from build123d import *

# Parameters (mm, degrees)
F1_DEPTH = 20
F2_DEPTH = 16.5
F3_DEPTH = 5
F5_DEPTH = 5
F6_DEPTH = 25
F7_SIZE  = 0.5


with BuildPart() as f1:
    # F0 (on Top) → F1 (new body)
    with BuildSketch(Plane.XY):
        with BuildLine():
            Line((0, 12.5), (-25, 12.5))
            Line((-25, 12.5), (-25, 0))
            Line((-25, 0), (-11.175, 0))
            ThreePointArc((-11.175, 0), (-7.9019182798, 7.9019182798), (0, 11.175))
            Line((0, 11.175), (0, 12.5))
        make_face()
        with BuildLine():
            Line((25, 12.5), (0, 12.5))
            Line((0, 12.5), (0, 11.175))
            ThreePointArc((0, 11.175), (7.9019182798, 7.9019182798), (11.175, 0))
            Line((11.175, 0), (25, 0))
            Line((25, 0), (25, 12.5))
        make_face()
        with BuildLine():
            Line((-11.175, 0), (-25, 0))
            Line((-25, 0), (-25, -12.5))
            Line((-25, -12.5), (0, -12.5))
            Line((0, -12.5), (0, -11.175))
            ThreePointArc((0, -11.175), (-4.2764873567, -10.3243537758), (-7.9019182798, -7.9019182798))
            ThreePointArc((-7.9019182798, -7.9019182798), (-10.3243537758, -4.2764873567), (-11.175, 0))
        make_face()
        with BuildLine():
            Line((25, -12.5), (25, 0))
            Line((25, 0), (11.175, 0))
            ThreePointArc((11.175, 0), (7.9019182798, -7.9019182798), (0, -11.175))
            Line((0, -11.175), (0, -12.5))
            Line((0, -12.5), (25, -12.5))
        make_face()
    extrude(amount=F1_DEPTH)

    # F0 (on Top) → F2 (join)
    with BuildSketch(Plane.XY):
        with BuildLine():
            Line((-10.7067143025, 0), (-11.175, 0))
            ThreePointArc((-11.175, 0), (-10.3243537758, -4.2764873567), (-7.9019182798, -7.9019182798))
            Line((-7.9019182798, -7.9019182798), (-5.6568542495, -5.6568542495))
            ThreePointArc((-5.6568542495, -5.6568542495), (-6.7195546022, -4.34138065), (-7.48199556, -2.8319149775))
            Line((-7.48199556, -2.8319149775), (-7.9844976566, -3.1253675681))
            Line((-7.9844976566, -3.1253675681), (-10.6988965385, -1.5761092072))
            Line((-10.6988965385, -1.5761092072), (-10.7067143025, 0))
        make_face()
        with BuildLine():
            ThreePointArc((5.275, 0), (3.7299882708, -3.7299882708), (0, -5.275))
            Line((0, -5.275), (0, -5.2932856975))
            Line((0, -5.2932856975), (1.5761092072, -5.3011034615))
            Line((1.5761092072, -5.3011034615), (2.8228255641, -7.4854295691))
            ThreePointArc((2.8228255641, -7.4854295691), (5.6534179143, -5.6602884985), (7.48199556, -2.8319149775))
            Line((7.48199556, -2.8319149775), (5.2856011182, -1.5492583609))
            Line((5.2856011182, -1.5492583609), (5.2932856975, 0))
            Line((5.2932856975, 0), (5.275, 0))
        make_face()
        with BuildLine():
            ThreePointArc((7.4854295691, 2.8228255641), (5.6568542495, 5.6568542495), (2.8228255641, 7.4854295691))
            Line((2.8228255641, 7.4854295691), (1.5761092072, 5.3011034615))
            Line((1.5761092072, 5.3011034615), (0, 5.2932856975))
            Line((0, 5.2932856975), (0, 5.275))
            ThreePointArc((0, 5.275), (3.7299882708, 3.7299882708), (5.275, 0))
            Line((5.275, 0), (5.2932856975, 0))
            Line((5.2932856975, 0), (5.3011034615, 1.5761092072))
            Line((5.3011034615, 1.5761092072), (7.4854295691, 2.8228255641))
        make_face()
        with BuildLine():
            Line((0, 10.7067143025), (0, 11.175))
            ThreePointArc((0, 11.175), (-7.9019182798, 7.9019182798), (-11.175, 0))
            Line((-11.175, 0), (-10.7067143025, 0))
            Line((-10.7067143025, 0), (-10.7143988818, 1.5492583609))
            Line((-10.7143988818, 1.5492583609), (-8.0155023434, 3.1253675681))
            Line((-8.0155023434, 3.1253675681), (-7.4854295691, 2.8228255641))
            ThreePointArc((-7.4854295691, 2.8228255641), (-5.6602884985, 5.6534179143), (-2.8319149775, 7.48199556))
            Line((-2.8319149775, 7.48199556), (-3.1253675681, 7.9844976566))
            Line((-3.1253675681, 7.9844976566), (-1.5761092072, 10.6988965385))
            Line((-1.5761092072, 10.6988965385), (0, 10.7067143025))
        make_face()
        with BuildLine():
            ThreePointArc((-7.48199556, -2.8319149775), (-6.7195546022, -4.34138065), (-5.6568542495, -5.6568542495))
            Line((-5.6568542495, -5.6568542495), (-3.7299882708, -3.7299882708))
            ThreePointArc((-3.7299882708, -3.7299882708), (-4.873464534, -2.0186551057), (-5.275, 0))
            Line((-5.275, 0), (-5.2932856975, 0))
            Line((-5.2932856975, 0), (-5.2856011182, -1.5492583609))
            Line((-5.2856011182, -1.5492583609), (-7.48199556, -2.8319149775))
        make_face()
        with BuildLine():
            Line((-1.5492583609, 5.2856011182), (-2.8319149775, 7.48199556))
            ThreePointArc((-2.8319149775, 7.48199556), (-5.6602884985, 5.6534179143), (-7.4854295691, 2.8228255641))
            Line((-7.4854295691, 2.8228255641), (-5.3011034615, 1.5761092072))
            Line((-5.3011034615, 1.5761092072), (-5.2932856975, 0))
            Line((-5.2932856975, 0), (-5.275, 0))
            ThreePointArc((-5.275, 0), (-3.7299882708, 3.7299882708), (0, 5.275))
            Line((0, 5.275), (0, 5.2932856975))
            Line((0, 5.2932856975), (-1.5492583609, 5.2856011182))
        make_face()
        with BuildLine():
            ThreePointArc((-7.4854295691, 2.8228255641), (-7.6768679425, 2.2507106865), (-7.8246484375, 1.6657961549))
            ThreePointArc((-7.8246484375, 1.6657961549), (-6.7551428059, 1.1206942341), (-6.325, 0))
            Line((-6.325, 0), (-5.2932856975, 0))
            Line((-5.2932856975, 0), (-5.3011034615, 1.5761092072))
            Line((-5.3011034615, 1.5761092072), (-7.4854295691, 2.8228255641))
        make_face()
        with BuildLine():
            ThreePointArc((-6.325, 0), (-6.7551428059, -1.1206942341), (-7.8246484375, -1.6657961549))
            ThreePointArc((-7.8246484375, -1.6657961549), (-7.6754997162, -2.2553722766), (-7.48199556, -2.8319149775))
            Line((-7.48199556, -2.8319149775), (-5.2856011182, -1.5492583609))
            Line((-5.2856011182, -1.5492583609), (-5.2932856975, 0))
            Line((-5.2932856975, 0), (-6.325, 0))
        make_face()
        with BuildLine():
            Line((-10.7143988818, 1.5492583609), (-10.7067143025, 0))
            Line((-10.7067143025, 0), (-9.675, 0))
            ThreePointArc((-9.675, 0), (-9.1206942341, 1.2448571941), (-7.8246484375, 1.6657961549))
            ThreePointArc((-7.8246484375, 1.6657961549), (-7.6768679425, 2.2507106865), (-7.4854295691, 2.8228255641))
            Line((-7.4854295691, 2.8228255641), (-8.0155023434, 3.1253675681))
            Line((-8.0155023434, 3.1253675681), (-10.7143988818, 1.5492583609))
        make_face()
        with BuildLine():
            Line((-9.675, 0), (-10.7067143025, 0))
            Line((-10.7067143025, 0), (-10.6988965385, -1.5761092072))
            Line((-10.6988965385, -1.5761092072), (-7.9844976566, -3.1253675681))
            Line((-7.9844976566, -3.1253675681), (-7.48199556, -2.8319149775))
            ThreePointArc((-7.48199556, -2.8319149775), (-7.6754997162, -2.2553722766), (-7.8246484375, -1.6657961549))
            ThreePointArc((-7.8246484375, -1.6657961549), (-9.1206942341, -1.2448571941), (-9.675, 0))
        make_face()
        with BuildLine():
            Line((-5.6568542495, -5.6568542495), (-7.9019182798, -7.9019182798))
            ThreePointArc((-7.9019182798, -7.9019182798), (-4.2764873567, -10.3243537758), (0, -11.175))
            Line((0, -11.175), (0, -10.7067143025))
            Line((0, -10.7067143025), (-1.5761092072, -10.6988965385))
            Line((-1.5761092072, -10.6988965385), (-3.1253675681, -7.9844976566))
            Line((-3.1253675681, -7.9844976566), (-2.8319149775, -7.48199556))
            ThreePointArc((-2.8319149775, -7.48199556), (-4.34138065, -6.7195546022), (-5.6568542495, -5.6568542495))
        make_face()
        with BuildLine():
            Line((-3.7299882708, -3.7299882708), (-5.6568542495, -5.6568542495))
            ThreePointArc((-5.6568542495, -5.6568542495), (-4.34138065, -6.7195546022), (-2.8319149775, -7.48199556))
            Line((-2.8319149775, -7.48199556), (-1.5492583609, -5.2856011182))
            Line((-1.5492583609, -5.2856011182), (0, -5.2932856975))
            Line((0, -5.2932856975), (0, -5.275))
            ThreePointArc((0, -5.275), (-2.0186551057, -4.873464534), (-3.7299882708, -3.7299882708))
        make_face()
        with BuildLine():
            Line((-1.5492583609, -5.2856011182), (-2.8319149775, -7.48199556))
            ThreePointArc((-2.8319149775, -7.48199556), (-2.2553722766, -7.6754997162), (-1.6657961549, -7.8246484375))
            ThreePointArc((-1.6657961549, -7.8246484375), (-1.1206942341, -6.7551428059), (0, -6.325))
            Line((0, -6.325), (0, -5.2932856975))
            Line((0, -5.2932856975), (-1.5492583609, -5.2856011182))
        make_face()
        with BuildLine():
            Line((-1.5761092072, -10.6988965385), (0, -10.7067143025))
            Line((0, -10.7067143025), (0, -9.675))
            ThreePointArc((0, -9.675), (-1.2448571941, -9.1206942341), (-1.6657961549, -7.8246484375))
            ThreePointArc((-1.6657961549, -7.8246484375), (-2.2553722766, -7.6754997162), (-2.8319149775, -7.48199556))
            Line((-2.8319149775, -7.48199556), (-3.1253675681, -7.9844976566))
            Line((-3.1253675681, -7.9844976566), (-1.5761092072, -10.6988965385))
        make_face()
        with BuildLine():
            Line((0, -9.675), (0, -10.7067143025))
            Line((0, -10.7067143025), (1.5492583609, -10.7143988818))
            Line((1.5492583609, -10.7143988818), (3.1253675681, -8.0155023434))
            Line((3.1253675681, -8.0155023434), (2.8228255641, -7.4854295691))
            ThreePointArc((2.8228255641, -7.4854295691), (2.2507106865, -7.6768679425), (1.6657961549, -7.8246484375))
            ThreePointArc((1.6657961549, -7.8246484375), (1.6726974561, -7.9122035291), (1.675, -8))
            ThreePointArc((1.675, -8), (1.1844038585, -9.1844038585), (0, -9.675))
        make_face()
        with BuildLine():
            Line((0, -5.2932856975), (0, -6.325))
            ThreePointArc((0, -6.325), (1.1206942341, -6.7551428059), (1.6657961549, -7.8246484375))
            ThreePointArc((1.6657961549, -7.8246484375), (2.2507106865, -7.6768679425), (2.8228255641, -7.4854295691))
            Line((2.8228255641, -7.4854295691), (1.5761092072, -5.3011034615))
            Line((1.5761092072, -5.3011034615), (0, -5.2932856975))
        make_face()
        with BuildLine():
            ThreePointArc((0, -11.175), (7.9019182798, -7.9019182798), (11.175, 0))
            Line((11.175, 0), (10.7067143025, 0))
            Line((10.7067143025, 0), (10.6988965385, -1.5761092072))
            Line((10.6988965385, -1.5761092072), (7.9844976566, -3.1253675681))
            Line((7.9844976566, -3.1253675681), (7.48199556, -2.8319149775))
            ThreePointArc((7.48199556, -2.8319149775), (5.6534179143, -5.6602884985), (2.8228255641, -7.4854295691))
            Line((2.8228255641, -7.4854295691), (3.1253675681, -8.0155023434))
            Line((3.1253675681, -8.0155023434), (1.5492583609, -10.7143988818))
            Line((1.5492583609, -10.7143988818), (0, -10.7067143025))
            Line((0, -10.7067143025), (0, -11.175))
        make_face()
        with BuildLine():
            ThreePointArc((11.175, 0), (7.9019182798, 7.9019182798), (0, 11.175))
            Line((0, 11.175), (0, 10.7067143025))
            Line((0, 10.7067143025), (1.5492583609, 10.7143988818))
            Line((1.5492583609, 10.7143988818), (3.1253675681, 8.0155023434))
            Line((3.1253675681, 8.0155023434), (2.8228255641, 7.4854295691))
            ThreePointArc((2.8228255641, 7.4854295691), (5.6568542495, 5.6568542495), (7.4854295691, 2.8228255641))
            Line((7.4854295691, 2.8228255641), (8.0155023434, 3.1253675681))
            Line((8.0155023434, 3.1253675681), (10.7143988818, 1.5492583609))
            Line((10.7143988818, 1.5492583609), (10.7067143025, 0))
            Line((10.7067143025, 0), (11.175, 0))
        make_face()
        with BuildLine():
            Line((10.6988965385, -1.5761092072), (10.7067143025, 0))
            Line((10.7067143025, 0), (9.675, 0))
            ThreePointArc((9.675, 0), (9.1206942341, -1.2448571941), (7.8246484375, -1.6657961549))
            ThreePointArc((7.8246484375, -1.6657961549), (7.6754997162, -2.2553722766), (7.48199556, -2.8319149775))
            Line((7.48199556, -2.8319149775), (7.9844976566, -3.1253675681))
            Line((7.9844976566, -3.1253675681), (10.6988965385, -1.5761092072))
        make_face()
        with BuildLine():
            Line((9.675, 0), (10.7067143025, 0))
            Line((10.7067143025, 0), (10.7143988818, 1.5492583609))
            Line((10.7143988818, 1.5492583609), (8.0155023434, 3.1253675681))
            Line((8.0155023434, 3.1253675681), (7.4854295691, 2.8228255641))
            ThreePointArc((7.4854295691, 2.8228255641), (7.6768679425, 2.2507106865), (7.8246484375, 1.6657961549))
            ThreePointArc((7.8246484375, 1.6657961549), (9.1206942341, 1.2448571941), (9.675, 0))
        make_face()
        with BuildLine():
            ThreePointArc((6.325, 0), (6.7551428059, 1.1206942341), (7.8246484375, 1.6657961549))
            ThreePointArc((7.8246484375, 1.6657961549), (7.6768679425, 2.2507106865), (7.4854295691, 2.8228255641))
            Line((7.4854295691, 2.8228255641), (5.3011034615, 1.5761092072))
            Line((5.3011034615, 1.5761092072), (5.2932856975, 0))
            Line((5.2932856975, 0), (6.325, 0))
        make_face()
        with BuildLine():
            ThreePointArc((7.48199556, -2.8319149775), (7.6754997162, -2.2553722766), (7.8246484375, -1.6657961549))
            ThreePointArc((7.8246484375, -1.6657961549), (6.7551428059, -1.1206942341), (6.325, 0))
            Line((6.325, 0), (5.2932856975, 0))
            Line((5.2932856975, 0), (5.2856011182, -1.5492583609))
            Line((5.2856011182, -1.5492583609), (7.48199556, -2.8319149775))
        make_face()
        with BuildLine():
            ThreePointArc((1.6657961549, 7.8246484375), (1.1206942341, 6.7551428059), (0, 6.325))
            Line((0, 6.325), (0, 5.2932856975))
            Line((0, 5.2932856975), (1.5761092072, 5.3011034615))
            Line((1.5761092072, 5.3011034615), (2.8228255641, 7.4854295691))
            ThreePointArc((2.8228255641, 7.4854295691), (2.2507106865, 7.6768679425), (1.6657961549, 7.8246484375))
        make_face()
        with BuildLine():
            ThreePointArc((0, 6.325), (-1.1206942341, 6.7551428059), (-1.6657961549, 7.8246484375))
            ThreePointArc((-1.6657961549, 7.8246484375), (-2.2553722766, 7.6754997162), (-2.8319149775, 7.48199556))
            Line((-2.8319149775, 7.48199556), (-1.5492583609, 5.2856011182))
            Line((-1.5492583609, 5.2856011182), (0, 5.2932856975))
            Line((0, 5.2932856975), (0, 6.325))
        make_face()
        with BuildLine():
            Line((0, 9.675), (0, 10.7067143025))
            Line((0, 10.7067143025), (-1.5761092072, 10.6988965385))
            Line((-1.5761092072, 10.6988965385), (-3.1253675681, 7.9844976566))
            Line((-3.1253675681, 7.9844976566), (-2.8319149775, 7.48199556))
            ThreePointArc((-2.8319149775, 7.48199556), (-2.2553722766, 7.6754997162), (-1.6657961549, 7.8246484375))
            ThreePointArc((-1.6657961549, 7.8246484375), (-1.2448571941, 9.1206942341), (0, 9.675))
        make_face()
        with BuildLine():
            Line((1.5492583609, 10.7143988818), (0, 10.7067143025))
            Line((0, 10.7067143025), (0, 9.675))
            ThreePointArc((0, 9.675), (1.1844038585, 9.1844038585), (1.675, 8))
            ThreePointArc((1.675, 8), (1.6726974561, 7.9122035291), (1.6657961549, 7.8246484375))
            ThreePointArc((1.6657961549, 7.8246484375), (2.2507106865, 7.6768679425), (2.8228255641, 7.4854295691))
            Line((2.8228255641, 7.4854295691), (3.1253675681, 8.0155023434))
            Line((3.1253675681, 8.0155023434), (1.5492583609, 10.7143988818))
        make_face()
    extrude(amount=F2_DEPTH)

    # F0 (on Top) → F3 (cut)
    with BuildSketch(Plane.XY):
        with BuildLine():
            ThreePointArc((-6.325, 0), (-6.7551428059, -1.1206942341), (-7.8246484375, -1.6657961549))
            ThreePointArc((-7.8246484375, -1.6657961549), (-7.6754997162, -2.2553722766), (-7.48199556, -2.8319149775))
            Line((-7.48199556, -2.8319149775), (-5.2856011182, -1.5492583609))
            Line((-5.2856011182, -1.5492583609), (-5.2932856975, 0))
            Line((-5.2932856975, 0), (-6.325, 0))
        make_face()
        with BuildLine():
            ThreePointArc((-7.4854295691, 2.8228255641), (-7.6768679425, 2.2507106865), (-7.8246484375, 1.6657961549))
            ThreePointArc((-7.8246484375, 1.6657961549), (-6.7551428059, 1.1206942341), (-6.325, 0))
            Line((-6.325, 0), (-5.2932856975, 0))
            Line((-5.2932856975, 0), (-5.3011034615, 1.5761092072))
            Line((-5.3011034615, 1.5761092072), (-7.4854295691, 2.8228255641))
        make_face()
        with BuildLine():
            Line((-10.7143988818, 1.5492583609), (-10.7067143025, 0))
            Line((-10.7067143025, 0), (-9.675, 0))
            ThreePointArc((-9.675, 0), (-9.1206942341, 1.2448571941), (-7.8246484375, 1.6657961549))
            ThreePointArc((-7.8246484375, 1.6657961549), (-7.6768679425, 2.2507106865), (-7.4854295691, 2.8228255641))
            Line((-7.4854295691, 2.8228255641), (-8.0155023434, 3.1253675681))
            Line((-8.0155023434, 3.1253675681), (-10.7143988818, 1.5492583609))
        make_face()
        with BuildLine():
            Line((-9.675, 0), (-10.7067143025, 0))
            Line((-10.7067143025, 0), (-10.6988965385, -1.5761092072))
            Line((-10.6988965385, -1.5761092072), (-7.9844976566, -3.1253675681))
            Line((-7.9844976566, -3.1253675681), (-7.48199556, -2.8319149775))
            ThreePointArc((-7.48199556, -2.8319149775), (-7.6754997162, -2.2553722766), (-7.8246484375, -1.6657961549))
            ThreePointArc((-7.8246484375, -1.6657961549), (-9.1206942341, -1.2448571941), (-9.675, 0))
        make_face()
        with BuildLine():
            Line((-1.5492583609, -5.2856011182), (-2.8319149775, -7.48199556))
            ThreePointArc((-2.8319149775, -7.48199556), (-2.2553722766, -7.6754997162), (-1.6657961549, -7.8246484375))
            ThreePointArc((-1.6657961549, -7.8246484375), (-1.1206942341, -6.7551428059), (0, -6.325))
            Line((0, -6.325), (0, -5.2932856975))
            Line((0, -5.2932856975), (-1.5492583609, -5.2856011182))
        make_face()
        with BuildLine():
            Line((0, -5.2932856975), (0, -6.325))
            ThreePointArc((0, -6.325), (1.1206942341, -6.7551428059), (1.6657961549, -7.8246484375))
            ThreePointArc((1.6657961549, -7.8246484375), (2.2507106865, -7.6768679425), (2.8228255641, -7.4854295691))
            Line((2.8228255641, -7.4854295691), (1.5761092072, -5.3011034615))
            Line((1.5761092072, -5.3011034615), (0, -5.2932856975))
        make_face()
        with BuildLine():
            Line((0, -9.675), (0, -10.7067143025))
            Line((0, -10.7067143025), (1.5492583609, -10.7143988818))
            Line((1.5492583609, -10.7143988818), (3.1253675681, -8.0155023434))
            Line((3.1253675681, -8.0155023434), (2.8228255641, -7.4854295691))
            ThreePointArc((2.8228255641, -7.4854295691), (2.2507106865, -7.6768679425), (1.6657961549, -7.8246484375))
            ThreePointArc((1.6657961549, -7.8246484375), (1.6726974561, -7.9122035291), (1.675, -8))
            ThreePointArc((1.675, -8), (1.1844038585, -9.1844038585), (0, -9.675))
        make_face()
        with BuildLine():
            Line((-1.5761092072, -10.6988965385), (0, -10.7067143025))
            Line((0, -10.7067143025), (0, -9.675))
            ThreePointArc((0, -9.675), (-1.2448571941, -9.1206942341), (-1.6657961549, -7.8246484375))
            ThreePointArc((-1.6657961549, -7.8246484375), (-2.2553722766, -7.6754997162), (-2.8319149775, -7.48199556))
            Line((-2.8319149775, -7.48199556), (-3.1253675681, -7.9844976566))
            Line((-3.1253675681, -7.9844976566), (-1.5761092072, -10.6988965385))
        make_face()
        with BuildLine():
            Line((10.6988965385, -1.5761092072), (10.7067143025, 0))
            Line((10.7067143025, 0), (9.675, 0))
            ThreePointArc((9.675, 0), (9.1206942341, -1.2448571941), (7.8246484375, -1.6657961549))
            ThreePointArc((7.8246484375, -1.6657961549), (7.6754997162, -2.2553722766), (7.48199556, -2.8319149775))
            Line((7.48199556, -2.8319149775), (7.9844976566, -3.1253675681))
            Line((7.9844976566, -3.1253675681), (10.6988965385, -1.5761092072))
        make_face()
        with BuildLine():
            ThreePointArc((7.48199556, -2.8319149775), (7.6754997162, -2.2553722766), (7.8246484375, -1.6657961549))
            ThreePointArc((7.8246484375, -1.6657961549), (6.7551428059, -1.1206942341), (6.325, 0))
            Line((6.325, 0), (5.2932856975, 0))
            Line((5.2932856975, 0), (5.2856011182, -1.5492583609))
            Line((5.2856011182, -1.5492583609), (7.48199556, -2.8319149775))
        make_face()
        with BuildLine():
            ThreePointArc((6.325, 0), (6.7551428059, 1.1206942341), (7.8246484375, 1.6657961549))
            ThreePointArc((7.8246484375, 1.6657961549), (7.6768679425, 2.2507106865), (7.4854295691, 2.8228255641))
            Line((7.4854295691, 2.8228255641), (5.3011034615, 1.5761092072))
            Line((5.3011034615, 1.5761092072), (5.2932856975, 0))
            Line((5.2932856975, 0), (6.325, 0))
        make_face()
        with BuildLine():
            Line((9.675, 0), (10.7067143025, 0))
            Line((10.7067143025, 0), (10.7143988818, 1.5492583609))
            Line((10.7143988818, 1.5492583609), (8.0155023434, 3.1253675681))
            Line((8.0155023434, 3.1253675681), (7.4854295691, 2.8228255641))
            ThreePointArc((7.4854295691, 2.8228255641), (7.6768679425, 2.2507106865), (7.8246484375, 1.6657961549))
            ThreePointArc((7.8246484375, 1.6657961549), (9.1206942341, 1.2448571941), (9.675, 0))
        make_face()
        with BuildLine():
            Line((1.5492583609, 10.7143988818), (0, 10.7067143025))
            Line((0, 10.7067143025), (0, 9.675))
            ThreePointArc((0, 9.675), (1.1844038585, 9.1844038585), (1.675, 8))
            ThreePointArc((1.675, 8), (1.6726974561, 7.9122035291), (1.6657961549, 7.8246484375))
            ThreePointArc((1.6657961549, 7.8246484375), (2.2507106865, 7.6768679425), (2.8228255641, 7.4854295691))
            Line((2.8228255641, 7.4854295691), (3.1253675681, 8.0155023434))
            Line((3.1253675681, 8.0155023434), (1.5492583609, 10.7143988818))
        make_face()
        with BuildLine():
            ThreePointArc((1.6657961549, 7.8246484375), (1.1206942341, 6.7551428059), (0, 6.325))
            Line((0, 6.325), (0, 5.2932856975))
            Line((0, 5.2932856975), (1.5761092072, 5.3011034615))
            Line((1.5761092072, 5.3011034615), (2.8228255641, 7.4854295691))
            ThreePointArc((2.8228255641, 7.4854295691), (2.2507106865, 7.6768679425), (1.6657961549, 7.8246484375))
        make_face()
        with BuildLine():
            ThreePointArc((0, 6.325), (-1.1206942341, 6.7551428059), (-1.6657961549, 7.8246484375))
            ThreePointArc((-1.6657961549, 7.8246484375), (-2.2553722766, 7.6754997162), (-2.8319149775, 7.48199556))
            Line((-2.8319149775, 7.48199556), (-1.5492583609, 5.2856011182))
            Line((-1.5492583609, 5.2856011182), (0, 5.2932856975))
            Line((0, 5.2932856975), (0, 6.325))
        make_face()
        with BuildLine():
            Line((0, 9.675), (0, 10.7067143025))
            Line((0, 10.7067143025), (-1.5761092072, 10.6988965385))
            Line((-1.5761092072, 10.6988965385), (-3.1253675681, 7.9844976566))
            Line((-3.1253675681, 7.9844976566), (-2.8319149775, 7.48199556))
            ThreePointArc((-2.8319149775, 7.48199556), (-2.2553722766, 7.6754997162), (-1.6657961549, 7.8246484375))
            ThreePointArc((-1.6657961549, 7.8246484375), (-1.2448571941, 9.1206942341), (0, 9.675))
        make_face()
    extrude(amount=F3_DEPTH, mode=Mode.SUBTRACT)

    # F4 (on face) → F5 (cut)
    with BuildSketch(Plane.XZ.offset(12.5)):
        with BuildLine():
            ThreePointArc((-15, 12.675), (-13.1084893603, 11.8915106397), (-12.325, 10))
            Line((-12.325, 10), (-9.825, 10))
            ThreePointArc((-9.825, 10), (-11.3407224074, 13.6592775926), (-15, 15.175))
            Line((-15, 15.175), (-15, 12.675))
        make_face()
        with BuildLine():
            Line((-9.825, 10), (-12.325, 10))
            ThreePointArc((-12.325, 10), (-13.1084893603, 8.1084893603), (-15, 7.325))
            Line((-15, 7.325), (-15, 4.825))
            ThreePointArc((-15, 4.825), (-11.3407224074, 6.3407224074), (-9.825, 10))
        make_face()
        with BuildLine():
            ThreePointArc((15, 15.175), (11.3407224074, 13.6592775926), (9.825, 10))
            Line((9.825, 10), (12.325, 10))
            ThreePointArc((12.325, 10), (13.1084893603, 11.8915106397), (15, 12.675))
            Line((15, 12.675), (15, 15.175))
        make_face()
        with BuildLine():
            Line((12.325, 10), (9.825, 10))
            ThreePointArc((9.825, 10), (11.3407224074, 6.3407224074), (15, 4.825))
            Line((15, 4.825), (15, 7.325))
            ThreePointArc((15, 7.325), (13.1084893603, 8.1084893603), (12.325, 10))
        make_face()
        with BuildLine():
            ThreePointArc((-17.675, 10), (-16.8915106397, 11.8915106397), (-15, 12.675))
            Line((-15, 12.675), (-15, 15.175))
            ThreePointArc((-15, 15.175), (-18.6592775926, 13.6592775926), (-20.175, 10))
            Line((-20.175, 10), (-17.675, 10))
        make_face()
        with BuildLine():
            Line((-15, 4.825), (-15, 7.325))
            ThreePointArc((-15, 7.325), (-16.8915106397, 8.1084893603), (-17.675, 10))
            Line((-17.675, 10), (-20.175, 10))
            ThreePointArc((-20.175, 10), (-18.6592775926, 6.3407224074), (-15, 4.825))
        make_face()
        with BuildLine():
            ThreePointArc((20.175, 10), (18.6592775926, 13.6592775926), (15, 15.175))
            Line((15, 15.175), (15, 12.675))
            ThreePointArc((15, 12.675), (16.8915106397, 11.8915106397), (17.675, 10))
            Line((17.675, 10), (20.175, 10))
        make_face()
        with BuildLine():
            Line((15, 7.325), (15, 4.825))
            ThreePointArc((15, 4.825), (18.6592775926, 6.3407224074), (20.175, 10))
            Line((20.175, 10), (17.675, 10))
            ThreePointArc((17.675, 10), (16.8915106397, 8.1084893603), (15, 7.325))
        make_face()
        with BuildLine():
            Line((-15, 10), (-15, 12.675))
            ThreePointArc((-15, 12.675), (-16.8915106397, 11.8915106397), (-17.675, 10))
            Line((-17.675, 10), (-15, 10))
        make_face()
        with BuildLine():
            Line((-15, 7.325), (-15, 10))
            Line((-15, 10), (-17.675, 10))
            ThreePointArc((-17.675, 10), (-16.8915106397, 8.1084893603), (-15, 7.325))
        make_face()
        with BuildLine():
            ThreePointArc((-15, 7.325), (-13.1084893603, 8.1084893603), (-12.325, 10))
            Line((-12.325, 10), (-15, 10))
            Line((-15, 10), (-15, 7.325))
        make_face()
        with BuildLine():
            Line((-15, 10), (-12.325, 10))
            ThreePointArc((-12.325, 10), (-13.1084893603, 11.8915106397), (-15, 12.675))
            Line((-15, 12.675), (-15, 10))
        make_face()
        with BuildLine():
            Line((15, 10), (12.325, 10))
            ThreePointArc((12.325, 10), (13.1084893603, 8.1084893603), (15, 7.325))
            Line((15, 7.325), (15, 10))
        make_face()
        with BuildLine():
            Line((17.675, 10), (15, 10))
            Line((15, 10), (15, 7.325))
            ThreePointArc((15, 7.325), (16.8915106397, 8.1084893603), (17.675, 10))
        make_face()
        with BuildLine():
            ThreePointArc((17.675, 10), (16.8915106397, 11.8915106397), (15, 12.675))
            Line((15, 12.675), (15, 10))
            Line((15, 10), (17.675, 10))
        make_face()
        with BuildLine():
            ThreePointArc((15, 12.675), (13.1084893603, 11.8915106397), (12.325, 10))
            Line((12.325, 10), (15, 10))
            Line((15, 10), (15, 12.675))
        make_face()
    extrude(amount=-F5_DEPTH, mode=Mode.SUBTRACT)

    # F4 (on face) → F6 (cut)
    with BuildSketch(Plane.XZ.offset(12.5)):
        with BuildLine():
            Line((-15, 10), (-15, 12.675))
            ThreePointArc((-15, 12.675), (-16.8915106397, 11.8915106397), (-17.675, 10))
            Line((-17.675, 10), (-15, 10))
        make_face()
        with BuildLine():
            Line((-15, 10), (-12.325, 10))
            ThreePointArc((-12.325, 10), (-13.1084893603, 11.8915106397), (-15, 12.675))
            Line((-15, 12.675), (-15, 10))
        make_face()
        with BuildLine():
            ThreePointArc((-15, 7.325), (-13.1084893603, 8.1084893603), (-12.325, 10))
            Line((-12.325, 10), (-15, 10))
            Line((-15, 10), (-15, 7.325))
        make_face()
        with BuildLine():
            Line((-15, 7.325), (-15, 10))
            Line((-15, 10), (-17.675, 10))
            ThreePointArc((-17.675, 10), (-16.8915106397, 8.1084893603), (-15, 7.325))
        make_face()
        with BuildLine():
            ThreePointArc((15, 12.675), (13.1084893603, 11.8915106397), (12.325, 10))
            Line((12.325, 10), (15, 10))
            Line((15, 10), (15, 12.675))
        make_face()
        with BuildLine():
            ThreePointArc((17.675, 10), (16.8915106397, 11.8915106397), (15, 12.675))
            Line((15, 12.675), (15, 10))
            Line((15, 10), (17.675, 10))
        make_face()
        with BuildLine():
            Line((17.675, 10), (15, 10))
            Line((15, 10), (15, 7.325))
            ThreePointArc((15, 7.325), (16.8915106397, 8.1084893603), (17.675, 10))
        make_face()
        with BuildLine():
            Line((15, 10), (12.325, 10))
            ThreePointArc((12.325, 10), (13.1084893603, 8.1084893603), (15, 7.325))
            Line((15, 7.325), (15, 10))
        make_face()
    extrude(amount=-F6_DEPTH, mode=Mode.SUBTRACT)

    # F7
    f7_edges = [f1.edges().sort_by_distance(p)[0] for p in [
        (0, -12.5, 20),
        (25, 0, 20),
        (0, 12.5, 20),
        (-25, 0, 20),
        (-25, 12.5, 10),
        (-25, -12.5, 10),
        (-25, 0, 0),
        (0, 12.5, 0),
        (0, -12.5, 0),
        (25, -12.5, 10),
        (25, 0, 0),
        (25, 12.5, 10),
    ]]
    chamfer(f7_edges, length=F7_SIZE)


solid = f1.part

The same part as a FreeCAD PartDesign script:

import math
import FreeCAD as App
import Part
import Sketcher


def edges_at(feature, points):
    """Names of the edges that pass closest to the given points."""
    edges = feature.Shape.Edges
    near = lambda p: min(range(len(edges)), key=lambda i: edges[i].distToShape(Part.Vertex(*p))[0])
    return sorted({f"Edge{near(p) + 1}" for p in points})


def add_polygon(sketch, points):
    """Adds a closed chain of lines whose ends are joined by coincident constraints."""
    first, n = sketch.GeometryCount, len(points)
    for a, b in zip(points, points[1:] + points[:1]):
        sketch.addGeometry(Part.LineSegment(App.Vector(*a, 0), App.Vector(*b, 0)), False)
    for i in range(n):
        sketch.addConstraint(Sketcher.Constraint("Coincident", first + i, 2, first + (i + 1) % n, 1))

doc = App.newDocument("Part")
body = doc.addObject("PartDesign::Body", "Body")

sketch1 = body.newObject("Sketcher::SketchObject", "Sketch")
sketch1.AttachmentSupport = (doc.getObject("XY_Plane"), [""])
sketch1.MapMode = "FlatFace"
add_polygon(sketch1, [(-25, 12), (-25, -12), (25, -12), (25, 12)])
sketch1.addGeometry(Part.ArcOfCircle(Part.Circle(App.Vector(0, 0, 0), App.Vector(0, 0, 1), 11), math.radians(-135), math.radians(-90)), False)
sketch1.addGeometry(Part.ArcOfCircle(Part.Circle(App.Vector(0, 0, 0), App.Vector(0, 0, 1), 11), math.radians(180), math.radians(225)), False)
sketch1.addGeometry(Part.ArcOfCircle(Part.Circle(App.Vector(0, 0, 0), App.Vector(0, 0, 1), 11), math.radians(90), math.radians(180)), False)
sketch1.addGeometry(Part.ArcOfCircle(Part.Circle(App.Vector(0, 0, 0), App.Vector(0, 0, 1), 11), math.radians(0), math.radians(90)), False)
sketch1.addGeometry(Part.ArcOfCircle(Part.Circle(App.Vector(0, 0, 0), App.Vector(0, 0, 1), 11), math.radians(-90), math.radians(0)), False)
sketch1.addConstraint([
    Sketcher.Constraint("Tangent", 4, 1, 5, 2),
    Sketcher.Constraint("Tangent", 5, 1, 6, 2),
    Sketcher.Constraint("Tangent", 6, 1, 7, 2),
    Sketcher.Constraint("Tangent", 7, 1, 8, 2),
    Sketcher.Constraint("Tangent", 8, 1, 4, 2),
    Sketcher.Constraint("Vertical", 0),
    Sketcher.Constraint("Horizontal", 1),
    Sketcher.Constraint("Vertical", 2),
    Sketcher.Constraint("Horizontal", 3),
    Sketcher.Constraint("Coincident", 4, 3, -1, 1),
    Sketcher.Constraint("Coincident", 6, 3, -1, 1),
    Sketcher.Constraint("Symmetric", 0, 2, 2, 2, -1, 1),
    Sketcher.Constraint("PointOnObject", 5, 1, -1),
    Sketcher.Constraint("PointOnObject", 6, 1, -2),
    Sketcher.Constraint("PointOnObject", 7, 1, -1),
    Sketcher.Constraint("PointOnObject", 8, 1, -2),
    Sketcher.Constraint("DistanceX", 1, 1, 1, 2, 50.0),
    Sketcher.Constraint("DistanceY", 0, 2, 0, 1, 25.0),
    Sketcher.Constraint("Radius", 4, 11.175),
    Sketcher.Constraint("DistanceX", 4, 1, -1, 1, 7.901918),
])
pad1 = body.newObject("PartDesign::Pad", "Pad")
pad1.Profile = sketch1
pad1.Length = 20

sketch2 = body.newObject("Sketcher::SketchObject", "Sketch001")
sketch2.AttachmentSupport = (doc.getObject("XY_Plane"), [""])
sketch2.MapMode = "FlatFace"
sketch2.addGeometry([
    Part.ArcOfCircle(Part.Circle(App.Vector(0, 0, 0), App.Vector(0, 0, 1), 11.18), math.radians(90), math.radians(180)),
    Part.ArcOfCircle(Part.Circle(App.Vector(0, 0, 0), App.Vector(0, 0, 1), 11.18), math.radians(180), math.radians(225)),
    Part.ArcOfCircle(Part.Circle(App.Vector(0, 0, 0), App.Vector(0, 0, 1), 11.18), math.radians(-135), math.radians(-90)),
    Part.ArcOfCircle(Part.Circle(App.Vector(0, 0, 0), App.Vector(0, 0, 1), 11.18), math.radians(-90), math.radians(0)),
    Part.ArcOfCircle(Part.Circle(App.Vector(0, 0, 0), App.Vector(0, 0, 1), 11.18), math.radians(0), math.radians(90)),
    Part.ArcOfCircle(Part.Circle(App.Vector(8, 0, 0), App.Vector(0, 0, 1), 1.68), math.radians(96), math.radians(180)),
    Part.ArcOfCircle(Part.Circle(App.Vector(8, 0, 0), App.Vector(0, 0, 1), 1.68), math.radians(0), math.radians(96)),
    Part.ArcOfCircle(Part.Circle(App.Vector(8, 0, 0), App.Vector(0, 0, 1), 1.68), math.radians(-96), math.radians(0)),
    Part.ArcOfCircle(Part.Circle(App.Vector(8, 0, 0), App.Vector(0, 0, 1), 1.68), math.radians(180), math.radians(264)),
    Part.ArcOfCircle(Part.Circle(App.Vector(0, 8, 0), App.Vector(0, 0, 1), 1.68), math.radians(-90), math.radians(-6)),
    Part.ArcOfCircle(Part.Circle(App.Vector(0, 8, 0), App.Vector(0, 0, 1), 1.68), math.radians(-174), math.radians(-90)),
    Part.ArcOfCircle(Part.Circle(App.Vector(0, 8, 0), App.Vector(0, 0, 1), 1.68), math.radians(90), math.radians(186)),
    Part.ArcOfCircle(Part.Circle(App.Vector(0, 8, 0), App.Vector(0, 0, 1), 1.68), math.radians(0), math.radians(90)),
    Part.ArcOfCircle(Part.Circle(App.Vector(0, 8, 0), App.Vector(0, 0, 1), 1.68), math.radians(-6.01), math.radians(0)),
    Part.ArcOfCircle(Part.Circle(App.Vector(0, -8, 0), App.Vector(0, 0, 1), 1.68), math.radians(90), math.radians(174)),
    Part.ArcOfCircle(Part.Circle(App.Vector(0, -8, 0), App.Vector(0, 0, 1), 1.68), math.radians(6), math.radians(90)),
    Part.ArcOfCircle(Part.Circle(App.Vector(0, -8, 0), App.Vector(0, 0, 1), 1.68), math.radians(0), math.radians(6.01)),
    Part.ArcOfCircle(Part.Circle(App.Vector(0, -8, 0), App.Vector(0, 0, 1), 1.68), math.radians(-90), math.radians(0)),
    Part.ArcOfCircle(Part.Circle(App.Vector(0, -8, 0), App.Vector(0, 0, 1), 1.68), math.radians(174), math.radians(270)),
    Part.ArcOfCircle(Part.Circle(App.Vector(-8, 0, 0), App.Vector(0, 0, 1), 1.68), math.radians(84), math.radians(180)),
    Part.ArcOfCircle(Part.Circle(App.Vector(-8, 0, 0), App.Vector(0, 0, 1), 1.68), math.radians(0), math.radians(84)),
    Part.ArcOfCircle(Part.Circle(App.Vector(-8, 0, 0), App.Vector(0, 0, 1), 1.68), math.radians(-84), math.radians(0)),
    Part.ArcOfCircle(Part.Circle(App.Vector(-8, 0, 0), App.Vector(0, 0, 1), 1.68), math.radians(180), math.radians(276)),
    Part.ArcOfCircle(Part.Circle(App.Vector(0, 0, 0), App.Vector(0, 0, 1), 5.28), math.radians(180), math.radians(225)),
    Part.ArcOfCircle(Part.Circle(App.Vector(0, 0, 0), App.Vector(0, 0, 1), 5.28), math.radians(90), math.radians(180)),
    Part.ArcOfCircle(Part.Circle(App.Vector(0, 0, 0), App.Vector(0, 0, 1), 5.28), math.radians(0), math.radians(90)),
    Part.ArcOfCircle(Part.Circle(App.Vector(0, 0, 0), App.Vector(0, 0, 1), 5.28), math.radians(-90), math.radians(0)),
    Part.ArcOfCircle(Part.Circle(App.Vector(0, 0, 0), App.Vector(0, 0, 1), 5.28), math.radians(-135), math.radians(-90)),
], False)
sketch2.addConstraint([
    Sketcher.Constraint("Tangent", 0, 2, 1, 1),
    Sketcher.Constraint("Tangent", 1, 2, 2, 1),
    Sketcher.Constraint("Tangent", 2, 2, 3, 1),
    Sketcher.Constraint("Tangent", 3, 2, 4, 1),
    Sketcher.Constraint("Tangent", 4, 2, 0, 1),
    Sketcher.Constraint("Tangent", 5, 1, 6, 2),
    Sketcher.Constraint("Tangent", 6, 1, 7, 2),
    Sketcher.Constraint("Tangent", 7, 1, 8, 2),
    Sketcher.Constraint("Tangent", 8, 1, 5, 2),
    Sketcher.Constraint("Tangent", 9, 1, 10, 2),
    Sketcher.Constraint("Tangent", 10, 1, 11, 2),
    Sketcher.Constraint("Tangent", 11, 1, 12, 2),
    Sketcher.Constraint("Tangent", 12, 1, 13, 2),
    Sketcher.Constraint("Tangent", 13, 1, 9, 2),
    Sketcher.Constraint("Tangent", 14, 1, 15, 2),
    Sketcher.Constraint("Tangent", 15, 1, 16, 2),
    Sketcher.Constraint("Tangent", 16, 1, 17, 2),
    Sketcher.Constraint("Tangent", 17, 1, 18, 2),
    Sketcher.Constraint("Tangent", 18, 1, 14, 2),
    Sketcher.Constraint("Tangent", 19, 1, 20, 2),
    Sketcher.Constraint("Tangent", 20, 1, 21, 2),
    Sketcher.Constraint("Tangent", 21, 1, 22, 2),
    Sketcher.Constraint("Tangent", 22, 1, 19, 2),
    Sketcher.Constraint("Tangent", 23, 1, 24, 2),
    Sketcher.Constraint("Tangent", 24, 1, 25, 2),
    Sketcher.Constraint("Tangent", 25, 1, 26, 2),
    Sketcher.Constraint("Tangent", 26, 1, 27, 2),
    Sketcher.Constraint("Tangent", 27, 1, 23, 2),
    Sketcher.Constraint("Coincident", 0, 3, -1, 1),
    Sketcher.Constraint("Coincident", 2, 3, -1, 1),
    Sketcher.Constraint("Coincident", 23, 3, -1, 1),
    Sketcher.Constraint("Coincident", 25, 3, -1, 1),
    Sketcher.Constraint("Coincident", 11, 3, 9, 3),
    Sketcher.Constraint("Coincident", 16, 3, 14, 3),
    Sketcher.Constraint("Equal", 5, 6),
    Sketcher.Constraint("Equal", 8, 9),
    Sketcher.Constraint("Equal", 13, 14),
    Sketcher.Constraint("Equal", 18, 19),
    Sketcher.Constraint("Equal", 19, 20),
    Sketcher.Constraint("Symmetric", 9, 3, 14, 3, -1, 1),
    Sketcher.Constraint("Symmetric", 5, 3, 19, 3, -1, 1),
    Sketcher.Constraint("Symmetric", 10, 1, 13, 1, -2),
    Sketcher.Constraint("Symmetric", 5, 1, 19, 1, -2),
    Sketcher.Constraint("PointOnObject", 0, 2, -1),
    Sketcher.Constraint("PointOnObject", 2, 2, -2),
    Sketcher.Constraint("PointOnObject", 3, 2, -1),
    Sketcher.Constraint("PointOnObject", 4, 2, -2),
    Sketcher.Constraint("PointOnObject", 6, 1, -1),
    Sketcher.Constraint("PointOnObject", 8, 1, -1),
    Sketcher.Constraint("PointOnObject", 9, 1, -2),
    Sketcher.Constraint("PointOnObject", 11, 1, -2),
    Sketcher.Constraint("PointOnObject", 14, 1, -2),
    Sketcher.Constraint("PointOnObject", 17, 1, -2),
    Sketcher.Constraint("PointOnObject", 20, 1, -1),
    Sketcher.Constraint("PointOnObject", 22, 1, -1),
    Sketcher.Constraint("PointOnObject", 23, 1, -1),
    Sketcher.Constraint("PointOnObject", 24, 1, -2),
    Sketcher.Constraint("PointOnObject", 25, 1, -1),
    Sketcher.Constraint("PointOnObject", 26, 1, -2),
    Sketcher.Constraint("Horizontal", 13, 3, 12, 1),
    Sketcher.Constraint("Horizontal", 18, 3, 16, 1),
    Sketcher.Constraint("Horizontal", 15, 1, 18, 1),
    Sketcher.Constraint("Horizontal", 7, 1, 21, 1),
    Sketcher.Constraint("Vertical", 5, 1, 7, 1),
    Sketcher.Constraint("Vertical", 13, 1, 15, 1),
    Sketcher.Constraint("DistanceX", -1, 1, 5, 3, 8.0),
    Sketcher.Constraint("DistanceY", -1, 1, 9, 3, 8.0),
    Sketcher.Constraint("Radius", 0, 11.175),
    Sketcher.Constraint("Radius", 5, 1.675),
    Sketcher.Constraint("Radius", 23, 5.275),
    Sketcher.Constraint("DistanceX", 1, 2, -1, 1, 7.901918),
    Sketcher.Constraint("DistanceX", -1, 1, 5, 1, 7.824648),
    Sketcher.Constraint("DistanceY", -1, 1, 10, 1, 7.824648),
    Sketcher.Constraint("DistanceX", 27, 1, -1, 1, 3.729988),
])
pad2 = body.newObject("PartDesign::Pad", "Pad001")
pad2.Profile = sketch2
pad2.Length = 16.5

sketch3 = body.newObject("Sketcher::SketchObject", "Sketch002")
sketch3.AttachmentSupport = (doc.getObject("XY_Plane"), [""])
sketch3.MapMode = "FlatFace"
add_polygon(sketch3, [(-7.48, -2.83), (-5.29, -1.55), (-5.29, 0), (-5.3, 1.58), (-7.49, 2.82), (-8.02, 3.13), (-10.71, 1.55), (-10.71, 0), (-10.7, -1.58), (-7.98, -3.13)])
sketch3.addGeometry(Part.ArcOfCircle(Part.Circle(App.Vector(-8, 0, 0), App.Vector(0, 0, 1), 1.68), math.radians(-84), math.radians(0)), False)
sketch3.addGeometry(Part.ArcOfCircle(Part.Circle(App.Vector(-8, 0, 0), App.Vector(0, 0, 1), 1.68), math.radians(180), math.radians(276)), False)
sketch3.addGeometry(Part.ArcOfCircle(Part.Circle(App.Vector(-8, 0, 0), App.Vector(0, 0, 1), 1.68), math.radians(84), math.radians(180)), False)
sketch3.addGeometry(Part.ArcOfCircle(Part.Circle(App.Vector(-8, 0, 0), App.Vector(0, 0, 1), 1.68), math.radians(0), math.radians(84)), False)
add_polygon(sketch3, [(-1.55, -5.29), (-2.83, -7.48), (-3.13, -7.98), (-1.58, -10.7), (0, -10.71), (1.55, -10.71), (3.13, -8.02), (2.82, -7.49), (1.58, -5.3), (0, -5.29)])
sketch3.addGeometry(Part.ArcOfCircle(Part.Circle(App.Vector(0, -8, 0), App.Vector(0, 0, 1), 1.68), math.radians(90), math.radians(174)), False)
sketch3.addGeometry(Part.ArcOfCircle(Part.Circle(App.Vector(0, -8, 0), App.Vector(0, 0, 1), 1.68), math.radians(6), math.radians(90)), False)
sketch3.addGeometry(Part.ArcOfCircle(Part.Circle(App.Vector(0, -8, 0), App.Vector(0, 0, 1), 1.68), math.radians(0), math.radians(6.01)), False)
sketch3.addGeometry(Part.ArcOfCircle(Part.Circle(App.Vector(0, -8, 0), App.Vector(0, 0, 1), 1.68), math.radians(-90), math.radians(0)), False)
sketch3.addGeometry(Part.ArcOfCircle(Part.Circle(App.Vector(0, -8, 0), App.Vector(0, 0, 1), 1.68), math.radians(174), math.radians(270)), False)
add_polygon(sketch3, [(10.7, -1.58), (10.71, 0), (10.71, 1.55), (8.02, 3.13), (7.49, 2.82), (5.3, 1.58), (5.29, 0), (5.29, -1.55), (7.48, -2.83), (7.98, -3.13)])
sketch3.addGeometry(Part.ArcOfCircle(Part.Circle(App.Vector(8, 0, 0), App.Vector(0, 0, 1), 1.68), math.radians(-96), math.radians(0)), False)
sketch3.addGeometry(Part.ArcOfCircle(Part.Circle(App.Vector(8, 0, 0), App.Vector(0, 0, 1), 1.68), math.radians(180), math.radians(264)), False)
sketch3.addGeometry(Part.ArcOfCircle(Part.Circle(App.Vector(8, 0, 0), App.Vector(0, 0, 1), 1.68), math.radians(96), math.radians(180)), False)
sketch3.addGeometry(Part.ArcOfCircle(Part.Circle(App.Vector(8, 0, 0), App.Vector(0, 0, 1), 1.68), math.radians(0), math.radians(96)), False)
add_polygon(sketch3, [(1.55, 10.71), (0, 10.71), (-1.58, 10.7), (-3.13, 7.98), (-2.83, 7.48), (-1.55, 5.29), (0, 5.29), (1.58, 5.3), (2.82, 7.49), (3.13, 8.02)])
sketch3.addGeometry(Part.ArcOfCircle(Part.Circle(App.Vector(0, 8, 0), App.Vector(0, 0, 1), 1.68), math.radians(0), math.radians(90)), False)
sketch3.addGeometry(Part.ArcOfCircle(Part.Circle(App.Vector(0, 8, 0), App.Vector(0, 0, 1), 1.68), math.radians(-6.01), math.radians(0)), False)
sketch3.addGeometry(Part.ArcOfCircle(Part.Circle(App.Vector(0, 8, 0), App.Vector(0, 0, 1), 1.68), math.radians(-90), math.radians(-6)), False)
sketch3.addGeometry(Part.ArcOfCircle(Part.Circle(App.Vector(0, 8, 0), App.Vector(0, 0, 1), 1.68), math.radians(-174), math.radians(-90)), False)
sketch3.addGeometry(Part.ArcOfCircle(Part.Circle(App.Vector(0, 8, 0), App.Vector(0, 0, 1), 1.68), math.radians(90), math.radians(186)), False)
sketch3.addConstraint([
    Sketcher.Constraint("Tangent", 10, 1, 11, 2),
    Sketcher.Constraint("Tangent", 11, 1, 12, 2),
    Sketcher.Constraint("Tangent", 12, 1, 13, 2),
    Sketcher.Constraint("Tangent", 13, 1, 10, 2),
    Sketcher.Constraint("Tangent", 24, 1, 25, 2),
    Sketcher.Constraint("Tangent", 25, 1, 26, 2),
    Sketcher.Constraint("Tangent", 26, 1, 27, 2),
    Sketcher.Constraint("Tangent", 27, 1, 28, 2),
    Sketcher.Constraint("Tangent", 28, 1, 24, 2),
    Sketcher.Constraint("Tangent", 39, 1, 40, 2),
    Sketcher.Constraint("Tangent", 40, 1, 41, 2),
    Sketcher.Constraint("Tangent", 41, 1, 42, 2),
    Sketcher.Constraint("Tangent", 42, 1, 39, 2),
    Sketcher.Constraint("Tangent", 53, 1, 54, 2),
    Sketcher.Constraint("Tangent", 54, 1, 55, 2),
    Sketcher.Constraint("Tangent", 55, 1, 56, 2),
    Sketcher.Constraint("Tangent", 56, 1, 57, 2),
    Sketcher.Constraint("Tangent", 57, 1, 53, 2),
    Sketcher.Constraint("Coincident", 26, 3, 24, 3),
    Sketcher.Constraint("Coincident", 55, 3, 53, 3),
    Sketcher.Constraint("Equal", 10, 11),
    Sketcher.Constraint("Equal", 13, 24),
    Sketcher.Constraint("Equal", 28, 39),
    Sketcher.Constraint("Equal", 39, 40),
    Sketcher.Constraint("Equal", 42, 53),
    Sketcher.Constraint("Symmetric", 10, 3, 39, 3, -1, 1),
    Sketcher.Constraint("Symmetric", 24, 3, 53, 3, -1, 1),
    Sketcher.Constraint("Symmetric", 6, 2, 29, 2, -1, 1),
    Sketcher.Constraint("Symmetric", 1, 2, 34, 2, -1, 1),
    Sketcher.Constraint("Symmetric", 17, 2, 43, 2, -1, 1),
    Sketcher.Constraint("Symmetric", 22, 2, 48, 2, -1, 1),
    Sketcher.Constraint("Symmetric", 25, 1, 28, 1, -2),
    Sketcher.Constraint("Symmetric", 5, 2, 30, 2, -2),
    Sketcher.Constraint("Symmetric", 4, 2, 31, 2, -2),
    Sketcher.Constraint("Symmetric", 3, 2, 32, 2, -2),
    Sketcher.Constraint("Symmetric", 2, 2, 33, 2, -2),
    Sketcher.Constraint("Symmetric", 0, 2, 35, 2, -2),
    Sketcher.Constraint("Symmetric", 9, 2, 36, 2, -2),
    Sketcher.Constraint("Symmetric", 8, 2, 37, 2, -2),
    Sketcher.Constraint("Symmetric", 7, 2, 38, 2, -2),
    Sketcher.Constraint("Symmetric", 10, 1, 39, 1, -2),
    Sketcher.Constraint("Symmetric", 16, 2, 44, 2, -1),
    Sketcher.Constraint("Symmetric", 15, 2, 45, 2, -1),
    Sketcher.Constraint("Symmetric", 14, 2, 46, 2, -1),
    Sketcher.Constraint("Symmetric", 23, 2, 47, 2, -1),
    Sketcher.Constraint("Symmetric", 21, 2, 49, 2, -1),
    Sketcher.Constraint("Symmetric", 20, 2, 50, 2, -1),
    Sketcher.Constraint("Symmetric", 19, 2, 51, 2, -1),
    Sketcher.Constraint("Symmetric", 18, 2, 52, 2, -1),
    Sketcher.Constraint("PointOnObject", 1, 2, -1),
    Sketcher.Constraint("PointOnObject", 6, 2, -1),
    Sketcher.Constraint("PointOnObject", 11, 1, -1),
    Sketcher.Constraint("PointOnObject", 13, 1, -1),
    Sketcher.Constraint("PointOnObject", 17, 2, -2),
    Sketcher.Constraint("PointOnObject", 22, 2, -2),
    Sketcher.Constraint("PointOnObject", 24, 1, -2),
    Sketcher.Constraint("PointOnObject", 27, 1, -2),
    Sketcher.Constraint("PointOnObject", 40, 1, -1),
    Sketcher.Constraint("PointOnObject", 42, 1, -1),
    Sketcher.Constraint("PointOnObject", 55, 1, -2),
    Sketcher.Constraint("PointOnObject", 57, 1, -2),
    Sketcher.Constraint("Parallel", 1, 2),
    Sketcher.Constraint("Parallel", 3, 4),
    Sketcher.Constraint("Parallel", 0, 5),
    Sketcher.Constraint("Parallel", 2, 6),
    Sketcher.Constraint("Parallel", 6, 7),
    Sketcher.Constraint("Parallel", 4, 8),
    Sketcher.Constraint("Parallel", 5, 9),
    Sketcher.Constraint("Parallel", 14, 15),
    Sketcher.Constraint("Parallel", 17, 18),
    Sketcher.Constraint("Parallel", 15, 19),
    Sketcher.Constraint("Parallel", 16, 20),
    Sketcher.Constraint("Parallel", 20, 21),
    Sketcher.Constraint("Parallel", 18, 22),
    Sketcher.Constraint("Parallel", 22, 23),
    Sketcher.Constraint("Perpendicular", 23, 29),
    Sketcher.Constraint("Perpendicular", 19, 31),
    Sketcher.Constraint("Perpendicular", 21, 32),
    Sketcher.Constraint("Horizontal", 28, 3, 26, 1),
    Sketcher.Constraint("Horizontal", 12, 1, 41, 1),
    Sketcher.Constraint("Horizontal", 57, 3, 53, 1),
    Sketcher.Constraint("Horizontal", 54, 1, 56, 1),
    Sketcher.Constraint("Vertical", 10, 1, 12, 1),
    Sketcher.Constraint("Vertical", 25, 1, 54, 1),
    Sketcher.Constraint("Equal", 1, 6),
    Sketcher.Constraint("Equal", 2, 7),
    Sketcher.Constraint("Equal", 5, 8),
    Sketcher.Constraint("Equal", 0, 14),
    Sketcher.Constraint("Equal", 9, 15),
    Sketcher.Constraint("Equal", 8, 16),
    Sketcher.Constraint("Equal", 7, 17),
    Sketcher.Constraint("Equal", 6, 18),
    Sketcher.Constraint("Equal", 16, 19),
    Sketcher.Constraint("Equal", 4, 20),
    Sketcher.Constraint("DistanceX", 10, 3, -1, 1, 8.0),
    Sketcher.Constraint("DistanceY", 24, 3, -1, 1, 8.0),
    Sketcher.Constraint("Radius", 10, 1.675),
    Sketcher.Constraint("DistanceX", 0, 2, -1, 1, 5.285601),
    Sketcher.Constraint("DistanceX", 5, 2, -1, 1, 10.714399),
    Sketcher.Constraint("DistanceY", 18, 2, -1, 1, 10.714399),
    Sketcher.Constraint("Distance", 2, 1.576129),
    Sketcher.Constraint("Distance", 3, 2.515071),
    Sketcher.Constraint("DistanceY", 0, 2, -1, 1, 1.549258),
    Sketcher.Constraint("DistanceX", 3, 2, -1, 1, 7.48543),
    Sketcher.Constraint("DistanceX", 10, 1, -1, 1, 7.824648),
    Sketcher.Constraint("DistanceY", 25, 1, -1, 1, 7.824648),
    Sketcher.Constraint("Distance", 0, 2.543493),
    Sketcher.Constraint("Distance", 4, 0.610335),
])
pocket1 = body.newObject("PartDesign::Pocket", "Pocket")
pocket1.Profile = sketch3
pocket1.Length = 5
pocket1.Reversed = True

sketch4 = body.newObject("Sketcher::SketchObject", "Sketch003")
sketch4.AttachmentSupport = (doc.getObject("XZ_Plane"), [""])
sketch4.MapMode = "FlatFace"
sketch4.AttachmentOffset = App.Placement(App.Vector(0, 0, 12.5), App.Rotation())
sketch4.addGeometry([
    Part.ArcOfCircle(Part.Circle(App.Vector(-15, 10, 0), App.Vector(0, 0, 1), 5), math.radians(-90), math.radians(0)),
    Part.ArcOfCircle(Part.Circle(App.Vector(-15, 10, 0), App.Vector(0, 0, 1), 5), math.radians(0), math.radians(90)),
    Part.ArcOfCircle(Part.Circle(App.Vector(-15, 10, 0), App.Vector(0, 0, 1), 5), math.radians(90), math.radians(180)),
    Part.ArcOfCircle(Part.Circle(App.Vector(-15, 10, 0), App.Vector(0, 0, 1), 5), math.radians(180), math.radians(270)),
    Part.ArcOfCircle(Part.Circle(App.Vector(15, 10, 0), App.Vector(0, 0, 1), 5), math.radians(90), math.radians(180)),
    Part.ArcOfCircle(Part.Circle(App.Vector(15, 10, 0), App.Vector(0, 0, 1), 5), math.radians(180), math.radians(270)),
    Part.ArcOfCircle(Part.Circle(App.Vector(15, 10, 0), App.Vector(0, 0, 1), 5), math.radians(-90), math.radians(0)),
    Part.ArcOfCircle(Part.Circle(App.Vector(15, 10, 0), App.Vector(0, 0, 1), 5), math.radians(0), math.radians(90)),
], False)
sketch4.addConstraint([
    Sketcher.Constraint("Tangent", 0, 2, 1, 1),
    Sketcher.Constraint("Tangent", 1, 2, 2, 1),
    Sketcher.Constraint("Tangent", 2, 2, 3, 1),
    Sketcher.Constraint("Tangent", 3, 2, 0, 1),
    Sketcher.Constraint("Tangent", 4, 2, 5, 1),
    Sketcher.Constraint("Tangent", 5, 2, 6, 1),
    Sketcher.Constraint("Tangent", 6, 2, 7, 1),
    Sketcher.Constraint("Tangent", 7, 2, 4, 1),
    Sketcher.Constraint("Equal", 0, 1),
    Sketcher.Constraint("Equal", 3, 4),
    Sketcher.Constraint("Equal", 4, 5),
    Sketcher.Constraint("Symmetric", 0, 3, 4, 3, -2),
    Sketcher.Constraint("Horizontal", 7, 3, 0, 2),
    Sketcher.Constraint("Horizontal", 0, 2, 2, 2),
    Sketcher.Constraint("Horizontal", 2, 2, 4, 2),
    Sketcher.Constraint("Horizontal", 4, 2, 6, 2),
    Sketcher.Constraint("Vertical", 3, 3, 1, 2),
    Sketcher.Constraint("Vertical", 1, 2, 3, 2),
    Sketcher.Constraint("Vertical", 7, 3, 5, 2),
    Sketcher.Constraint("Vertical", 5, 2, 7, 2),
    Sketcher.Constraint("DistanceX", 0, 3, -1, 1, 15.0),
    Sketcher.Constraint("DistanceY", -1, 1, 0, 3, 10.0),
    Sketcher.Constraint("Radius", 0, 5.175),
])
pocket2 = body.newObject("PartDesign::Pocket", "Pocket001")
pocket2.Profile = sketch4
pocket2.Length = 5

sketch5 = body.newObject("Sketcher::SketchObject", "Sketch004")
sketch5.AttachmentSupport = (doc.getObject("XZ_Plane"), [""])
sketch5.MapMode = "FlatFace"
sketch5.AttachmentOffset = App.Placement(App.Vector(0, 0, 12.5), App.Rotation())
sketch5.addGeometry([
    Part.ArcOfCircle(Part.Circle(App.Vector(-15, 10, 0), App.Vector(0, 0, 1), 2.7), math.radians(90), math.radians(180)),
    Part.ArcOfCircle(Part.Circle(App.Vector(-15, 10, 0), App.Vector(0, 0, 1), 2.7), math.radians(180), math.radians(270)),
    Part.ArcOfCircle(Part.Circle(App.Vector(-15, 10, 0), App.Vector(0, 0, 1), 2.7), math.radians(-90), math.radians(0)),
    Part.ArcOfCircle(Part.Circle(App.Vector(-15, 10, 0), App.Vector(0, 0, 1), 2.7), math.radians(0), math.radians(90)),
    Part.ArcOfCircle(Part.Circle(App.Vector(15, 10, 0), App.Vector(0, 0, 1), 2.7), math.radians(90), math.radians(180)),
    Part.ArcOfCircle(Part.Circle(App.Vector(15, 10, 0), App.Vector(0, 0, 1), 2.7), math.radians(180), math.radians(270)),
    Part.ArcOfCircle(Part.Circle(App.Vector(15, 10, 0), App.Vector(0, 0, 1), 2.7), math.radians(-90), math.radians(0)),
    Part.ArcOfCircle(Part.Circle(App.Vector(15, 10, 0), App.Vector(0, 0, 1), 2.7), math.radians(0), math.radians(90)),
], False)
sketch5.addConstraint([
    Sketcher.Constraint("Tangent", 0, 2, 1, 1),
    Sketcher.Constraint("Tangent", 1, 2, 2, 1),
    Sketcher.Constraint("Tangent", 2, 2, 3, 1),
    Sketcher.Constraint("Tangent", 3, 2, 0, 1),
    Sketcher.Constraint("Tangent", 4, 2, 5, 1),
    Sketcher.Constraint("Tangent", 5, 2, 6, 1),
    Sketcher.Constraint("Tangent", 6, 2, 7, 1),
    Sketcher.Constraint("Tangent", 7, 2, 4, 1),
    Sketcher.Constraint("Equal", 0, 1),
    Sketcher.Constraint("Equal", 3, 4),
    Sketcher.Constraint("Equal", 4, 5),
    Sketcher.Constraint("Symmetric", 0, 3, 4, 3, -2),
    Sketcher.Constraint("Horizontal", 7, 3, 0, 2),
    Sketcher.Constraint("Horizontal", 0, 2, 2, 2),
    Sketcher.Constraint("Horizontal", 2, 2, 4, 2),
    Sketcher.Constraint("Horizontal", 4, 2, 6, 2),
    Sketcher.Constraint("Vertical", 3, 3, 1, 2),
    Sketcher.Constraint("Vertical", 1, 2, 3, 2),
    Sketcher.Constraint("Vertical", 7, 3, 5, 2),
    Sketcher.Constraint("Vertical", 5, 2, 7, 2),
    Sketcher.Constraint("DistanceX", 0, 3, -1, 1, 15.0),
    Sketcher.Constraint("DistanceY", -1, 1, 0, 3, 10.0),
    Sketcher.Constraint("Radius", 0, 2.675),
])
pocket3 = body.newObject("PartDesign::Pocket", "Pocket002")
pocket3.Profile = sketch5
pocket3.Length = 25
doc.recompute()

chamfer = body.newObject("PartDesign::Chamfer", "Chamfer")
chamfer.Base = (pocket3, edges_at(pocket3, [
    (0, -12.5, 20),
    (25, 0, 20),
    (0, 12.5, 20),
    (-25, 0, 20),
    (-25, 12.5, 10),
    (-25, -12.5, 10),
    (-25, 0, 0),
    (0, 12.5, 0),
    (0, -12.5, 0),
    (25, -12.5, 10),
    (25, 0, 0),
    (25, 12.5, 10),
]))
chamfer.Size = 0.5

doc.recompute()
